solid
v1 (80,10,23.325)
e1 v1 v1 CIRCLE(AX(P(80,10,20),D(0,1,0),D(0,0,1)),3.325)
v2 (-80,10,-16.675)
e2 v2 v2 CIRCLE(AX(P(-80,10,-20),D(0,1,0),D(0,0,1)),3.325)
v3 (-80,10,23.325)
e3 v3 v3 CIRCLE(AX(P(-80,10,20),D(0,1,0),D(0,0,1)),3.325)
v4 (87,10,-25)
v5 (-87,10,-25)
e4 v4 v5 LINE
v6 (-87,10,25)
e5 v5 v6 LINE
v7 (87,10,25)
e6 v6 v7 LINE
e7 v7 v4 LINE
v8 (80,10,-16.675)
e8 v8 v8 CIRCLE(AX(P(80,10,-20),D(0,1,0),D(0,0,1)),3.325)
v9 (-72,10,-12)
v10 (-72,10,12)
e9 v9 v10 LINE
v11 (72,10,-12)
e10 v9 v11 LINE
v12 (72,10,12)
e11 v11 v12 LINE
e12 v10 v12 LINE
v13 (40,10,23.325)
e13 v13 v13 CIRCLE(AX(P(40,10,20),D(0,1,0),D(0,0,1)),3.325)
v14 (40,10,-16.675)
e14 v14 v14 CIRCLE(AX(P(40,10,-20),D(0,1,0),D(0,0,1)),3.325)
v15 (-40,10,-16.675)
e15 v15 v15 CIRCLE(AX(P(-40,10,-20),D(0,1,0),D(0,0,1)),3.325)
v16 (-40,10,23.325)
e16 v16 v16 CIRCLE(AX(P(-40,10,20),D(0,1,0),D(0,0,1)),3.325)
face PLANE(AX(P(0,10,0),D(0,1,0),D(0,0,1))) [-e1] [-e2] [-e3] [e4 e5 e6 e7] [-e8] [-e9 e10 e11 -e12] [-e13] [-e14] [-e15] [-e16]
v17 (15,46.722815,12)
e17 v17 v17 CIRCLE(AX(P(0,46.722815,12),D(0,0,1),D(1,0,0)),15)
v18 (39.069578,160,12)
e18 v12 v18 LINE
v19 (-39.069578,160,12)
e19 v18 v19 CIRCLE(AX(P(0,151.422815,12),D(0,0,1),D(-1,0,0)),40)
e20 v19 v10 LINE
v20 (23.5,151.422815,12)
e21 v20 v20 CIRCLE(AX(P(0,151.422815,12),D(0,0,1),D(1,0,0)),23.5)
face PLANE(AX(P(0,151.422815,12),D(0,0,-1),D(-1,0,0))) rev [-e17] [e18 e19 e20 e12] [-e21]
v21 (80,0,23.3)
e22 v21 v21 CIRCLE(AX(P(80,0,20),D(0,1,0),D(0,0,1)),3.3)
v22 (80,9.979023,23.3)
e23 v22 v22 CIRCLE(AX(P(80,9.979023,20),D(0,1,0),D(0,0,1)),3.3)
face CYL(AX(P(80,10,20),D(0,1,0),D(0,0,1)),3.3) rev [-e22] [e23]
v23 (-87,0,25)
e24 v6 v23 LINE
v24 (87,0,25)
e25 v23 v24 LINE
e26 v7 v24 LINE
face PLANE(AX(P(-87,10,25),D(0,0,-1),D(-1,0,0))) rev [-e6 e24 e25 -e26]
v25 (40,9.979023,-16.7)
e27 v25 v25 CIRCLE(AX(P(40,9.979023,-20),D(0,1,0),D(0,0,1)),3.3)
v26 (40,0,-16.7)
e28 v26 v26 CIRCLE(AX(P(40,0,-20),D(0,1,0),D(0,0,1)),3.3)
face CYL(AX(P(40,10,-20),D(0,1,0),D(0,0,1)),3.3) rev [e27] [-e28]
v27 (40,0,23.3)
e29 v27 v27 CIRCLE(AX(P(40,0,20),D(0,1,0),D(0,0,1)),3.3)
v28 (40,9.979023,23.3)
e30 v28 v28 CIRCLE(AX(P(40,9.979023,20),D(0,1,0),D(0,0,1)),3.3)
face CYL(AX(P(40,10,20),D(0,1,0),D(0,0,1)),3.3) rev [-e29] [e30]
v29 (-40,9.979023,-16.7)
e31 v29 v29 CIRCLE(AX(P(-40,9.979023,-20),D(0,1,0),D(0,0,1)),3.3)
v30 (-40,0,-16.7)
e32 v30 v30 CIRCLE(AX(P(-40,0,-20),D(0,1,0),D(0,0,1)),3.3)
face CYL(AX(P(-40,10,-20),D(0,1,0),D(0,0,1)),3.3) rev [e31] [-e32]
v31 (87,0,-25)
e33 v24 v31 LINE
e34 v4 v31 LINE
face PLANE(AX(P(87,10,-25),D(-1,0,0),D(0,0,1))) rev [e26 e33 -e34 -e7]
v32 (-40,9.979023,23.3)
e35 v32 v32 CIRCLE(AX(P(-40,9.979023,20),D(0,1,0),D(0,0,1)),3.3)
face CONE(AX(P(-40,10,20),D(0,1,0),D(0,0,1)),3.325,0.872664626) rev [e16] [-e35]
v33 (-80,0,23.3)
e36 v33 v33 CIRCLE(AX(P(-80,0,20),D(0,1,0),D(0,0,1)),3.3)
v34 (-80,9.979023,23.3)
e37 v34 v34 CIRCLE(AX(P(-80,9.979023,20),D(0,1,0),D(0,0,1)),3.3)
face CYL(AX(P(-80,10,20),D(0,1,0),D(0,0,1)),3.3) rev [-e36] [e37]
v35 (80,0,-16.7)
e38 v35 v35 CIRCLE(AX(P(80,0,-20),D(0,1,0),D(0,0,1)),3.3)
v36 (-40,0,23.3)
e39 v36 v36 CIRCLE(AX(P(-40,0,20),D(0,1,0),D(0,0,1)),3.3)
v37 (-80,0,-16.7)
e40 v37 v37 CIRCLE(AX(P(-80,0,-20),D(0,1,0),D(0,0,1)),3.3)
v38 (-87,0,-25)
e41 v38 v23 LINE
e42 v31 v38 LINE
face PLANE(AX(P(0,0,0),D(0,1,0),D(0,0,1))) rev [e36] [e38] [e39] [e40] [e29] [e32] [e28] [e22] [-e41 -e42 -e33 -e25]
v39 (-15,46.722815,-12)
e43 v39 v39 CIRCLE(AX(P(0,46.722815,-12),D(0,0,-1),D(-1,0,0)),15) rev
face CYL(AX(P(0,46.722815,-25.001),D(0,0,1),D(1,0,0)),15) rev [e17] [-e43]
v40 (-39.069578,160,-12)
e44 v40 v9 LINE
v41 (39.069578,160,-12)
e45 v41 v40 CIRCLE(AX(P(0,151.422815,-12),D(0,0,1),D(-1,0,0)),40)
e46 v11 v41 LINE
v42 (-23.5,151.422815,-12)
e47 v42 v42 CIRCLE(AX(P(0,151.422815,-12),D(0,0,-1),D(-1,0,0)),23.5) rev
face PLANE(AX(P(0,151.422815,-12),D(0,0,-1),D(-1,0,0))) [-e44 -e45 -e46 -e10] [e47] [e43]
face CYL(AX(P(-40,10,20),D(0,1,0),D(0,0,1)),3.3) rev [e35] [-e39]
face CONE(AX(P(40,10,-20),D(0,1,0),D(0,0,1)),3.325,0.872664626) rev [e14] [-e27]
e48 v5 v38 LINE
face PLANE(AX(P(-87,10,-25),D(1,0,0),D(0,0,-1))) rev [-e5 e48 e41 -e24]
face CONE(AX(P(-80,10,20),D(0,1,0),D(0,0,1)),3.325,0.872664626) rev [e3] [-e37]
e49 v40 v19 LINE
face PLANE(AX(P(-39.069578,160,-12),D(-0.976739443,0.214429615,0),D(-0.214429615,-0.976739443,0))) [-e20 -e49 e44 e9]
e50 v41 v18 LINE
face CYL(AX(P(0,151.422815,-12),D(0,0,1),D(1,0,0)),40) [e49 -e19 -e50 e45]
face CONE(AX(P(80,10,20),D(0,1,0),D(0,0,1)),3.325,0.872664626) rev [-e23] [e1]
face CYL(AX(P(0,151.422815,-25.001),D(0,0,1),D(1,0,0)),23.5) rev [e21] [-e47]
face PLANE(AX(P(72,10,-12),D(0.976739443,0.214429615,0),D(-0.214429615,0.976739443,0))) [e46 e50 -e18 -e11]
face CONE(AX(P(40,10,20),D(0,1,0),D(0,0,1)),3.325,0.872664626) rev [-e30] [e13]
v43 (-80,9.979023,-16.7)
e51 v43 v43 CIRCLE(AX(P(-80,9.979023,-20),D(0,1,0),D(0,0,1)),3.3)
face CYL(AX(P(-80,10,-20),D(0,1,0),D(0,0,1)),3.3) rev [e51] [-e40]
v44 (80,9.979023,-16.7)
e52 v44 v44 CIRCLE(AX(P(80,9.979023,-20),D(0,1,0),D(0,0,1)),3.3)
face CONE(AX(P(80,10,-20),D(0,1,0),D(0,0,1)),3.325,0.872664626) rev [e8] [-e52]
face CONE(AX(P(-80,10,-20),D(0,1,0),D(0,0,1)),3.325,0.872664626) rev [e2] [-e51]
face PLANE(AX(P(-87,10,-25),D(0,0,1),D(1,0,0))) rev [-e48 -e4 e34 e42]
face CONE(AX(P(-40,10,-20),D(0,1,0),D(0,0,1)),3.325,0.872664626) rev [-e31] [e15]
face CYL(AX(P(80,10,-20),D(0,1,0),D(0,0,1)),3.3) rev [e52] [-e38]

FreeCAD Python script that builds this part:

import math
import FreeCAD as App
import Part
import Sketcher


def add_polygon(sketch, points):
    """Adds a closed chain of lines whose ends are joined by coincident constraints."""
    first, n = sketch.GeometryCount, len(points)
    for a, b in zip(points, points[1:] + points[:1]):
        sketch.addGeometry(Part.LineSegment(App.Vector(*a, 0), App.Vector(*b, 0)), False)
    for i in range(n):
        sketch.addConstraint(Sketcher.Constraint("Coincident", first + i, 2, first + (i + 1) % n, 1))

doc = App.newDocument("Part")
params = doc.addObject("Spreadsheet::Sheet", "Params")
for row, (alias, value) in enumerate([
    ("sketch1_width", "174 mm"),
    ("sketch1_height", "50 mm"),
    ("pad1_length", "10 mm"),
    ("sketch2_diameter", "6.6 mm"),
    ("hole_diameter", "6.6 mm"),
    ("hole_csink_diameter", "6.65 mm"),
    ("sketch3_radius", "40 mm"),
    ("sketch3_width", "144 mm"),
    ("pad2_length", "12 mm"),
    ("pad2_length2", "12 mm"),
    ("sketch4_diameter", "30 mm"),
    ("sketch5_diameter", "47 mm"),
], start=1):
    params.set(f"A{row}", alias)
    params.set(f"B{row}", "=" + value)
    params.setAlias(f"B{row}", alias)

body = doc.addObject("PartDesign::Body", "Body")

# Sketch on XZ plane
sketch1 = doc.addObject("Sketcher::SketchObject", "Sketch")
body.addObject(sketch1)
sketch1.AttachmentSupport = (doc.XZ_Plane, [""])
sketch1.MapMode = "FlatFace"
add_polygon(sketch1, [(-87, -25), (-87, 25), (87, 25), (87, -25)])  # lines 0-3
sketch1.addConstraint(Sketcher.Constraint("Vertical", 0))
sketch1.addConstraint(Sketcher.Constraint("Horizontal", 1))
sketch1.addConstraint(Sketcher.Constraint("Vertical", 2))
sketch1.addConstraint(Sketcher.Constraint("Horizontal", 3))
sketch1.addConstraint(Sketcher.Constraint("Symmetric", 0, 2, 2, 2, -1, 1))
sketch1.addConstraint(Sketcher.Constraint("DistanceX", 1, 1, 1, 2, 174.0))
sketch1.addConstraint(Sketcher.Constraint("DistanceY", 0, 1, 0, 2, 50.0))
sketch1.setExpression("Constraints[9]", "Params.sketch1_width")
sketch1.setExpression("Constraints[10]", "Params.sketch1_height")
pad1 = doc.addObject("PartDesign::Pad", "Pad")
body.addObject(pad1)
pad1.Profile = sketch1
pad1.setExpression("Length", "Params.pad1_length")
pad1.Reversed = True

# Sketch on XZ plane
sketch2 = doc.addObject("Sketcher::SketchObject", "Sketch001")
body.addObject(sketch2)
sketch2.AttachmentSupport = (doc.XZ_Plane, [""])
sketch2.MapMode = "FlatFace"
sketch2.AttachmentOffset = App.Placement(App.Vector(0, 0, -10), App.Rotation())
sketch2.addGeometry(Part.Circle(App.Vector(-80, -20, 0), App.Vector(0, 0, 1), 3.3), False)
sketch2.addGeometry(Part.Circle(App.Vector(-40, -20, 0), App.Vector(0, 0, 1), 3.3), False)
sketch2.addGeometry(Part.Circle(App.Vector(-80, 20, 0), App.Vector(0, 0, 1), 3.3), False)
sketch2.addGeometry(Part.Circle(App.Vector(-40, 20, 0), App.Vector(0, 0, 1), 3.3), False)
sketch2.addGeometry(Part.Circle(App.Vector(40, -20, 0), App.Vector(0, 0, 1), 3.3), False)
sketch2.addGeometry(Part.Circle(App.Vector(80, -20, 0), App.Vector(0, 0, 1), 3.3), False)
sketch2.addGeometry(Part.Circle(App.Vector(40, 20, 0), App.Vector(0, 0, 1), 3.3), False)
sketch2.addGeometry(Part.Circle(App.Vector(80, 20, 0), App.Vector(0, 0, 1), 3.3), False)
sketch2.addConstraint(Sketcher.Constraint("Equal", 0, 1))
sketch2.addConstraint(Sketcher.Constraint("Equal", 1, 2))
sketch2.addConstraint(Sketcher.Constraint("Equal", 2, 3))
sketch2.addConstraint(Sketcher.Constraint("Equal", 3, 4))
sketch2.addConstraint(Sketcher.Constraint("Equal", 4, 5))
sketch2.addConstraint(Sketcher.Constraint("Equal", 5, 6))
sketch2.addConstraint(Sketcher.Constraint("Equal", 6, 7))
sketch2.addConstraint(Sketcher.Constraint("Symmetric", 3, 3, 4, 3, -1, 1))
sketch2.addConstraint(Sketcher.Constraint("Symmetric", 2, 3, 5, 3, -1, 1))
sketch2.addConstraint(Sketcher.Constraint("Symmetric", 1, 3, 6, 3, -1, 1))
sketch2.addConstraint(Sketcher.Constraint("Symmetric", 0, 3, 7, 3, -1, 1))
sketch2.addConstraint(Sketcher.Constraint("Symmetric", 1, 3, 4, 3, -2))
sketch2.addConstraint(Sketcher.Constraint("Symmetric", 0, 3, 5, 3, -2))
sketch2.addConstraint(Sketcher.Constraint("Horizontal", 0, 3, 1, 3))
sketch2.addConstraint(Sketcher.Constraint("Diameter", 0, 6.6))
sketch2.addConstraint(Sketcher.Constraint("DistanceX", 0, 3, -1, 1, 80.0))
sketch2.addConstraint(Sketcher.Constraint("DistanceY", 0, 3, -1, 1, 20.0))
sketch2.addConstraint(Sketcher.Constraint("DistanceX", 1, 3, -1, 1, 40.0))
sketch2.setExpression("Constraints[14]", "Params.sketch2_diameter")
doc.recompute()
hole = doc.addObject("PartDesign::Hole", "Hole")
body.addObject(hole)
hole.Profile = sketch2
hole.ThreadType = "None"
hole.setExpression("Diameter", "Params.hole_diameter")
hole.DepthType = "ThroughAll"
hole.HoleCutType = "Countersink"
hole.setExpression("HoleCutDiameter", "Params.hole_csink_diameter")
hole.HoleCutCountersinkAngle = 100
hole.Reversed = True

# Sketch on XY plane
sketch3 = doc.addObject("Sketcher::SketchObject", "Sketch002")
body.addObject(sketch3)
sketch3.AttachmentSupport = (doc.XY_Plane, [""])
sketch3.MapMode = "FlatFace"
sketch3.addGeometry(Part.LineSegment(App.Vector(-72, 10, 0), App.Vector(72, 10, 0)), False)
sketch3.addGeometry(Part.LineSegment(App.Vector(72, 10, 0), App.Vector(39, 160, 0)), False)
sketch3.addGeometry(Part.ArcOfCircle(Part.Circle(App.Vector(0, 151, 0), App.Vector(0, 0, 1), 40), math.radians(12), math.radians(168)), False)
sketch3.addGeometry(Part.LineSegment(App.Vector(-39, 160, 0), App.Vector(-72, 10, 0)), False)
sketch3.addConstraint(Sketcher.Constraint("Coincident", 0, 2, 1, 1))
sketch3.addConstraint(Sketcher.Constraint("Tangent", 1, 2, 2, 1))
sketch3.addConstraint(Sketcher.Constraint("Tangent", 2, 2, 3, 1))
sketch3.addConstraint(Sketcher.Constraint("Coincident", 3, 2, 0, 1))
sketch3.addConstraint(Sketcher.Constraint("Horizontal", 0))
sketch3.addConstraint(Sketcher.Constraint("Symmetric", 1, 2, 2, 2, -2))
sketch3.addConstraint(Sketcher.Constraint("Radius", 2, 40.0))
sketch3.addConstraint(Sketcher.Constraint("DistanceX", 0, 1, 0, 2, 144.0))
sketch3.addConstraint(Sketcher.Constraint("DistanceY", -1, 1, 0, 2, 10.0))
sketch3.addConstraint(Sketcher.Constraint("DistanceY", -1, 1, 1, 2, 160.0))
sketch3.setExpression("Constraints[6]", "Params.sketch3_radius")
sketch3.setExpression("Constraints[7]", "Params.sketch3_width")
pad2 = doc.addObject("PartDesign::Pad", "Pad001")
body.addObject(pad2)
pad2.Profile = sketch3
pad2.Type = "TwoLengths"
pad2.setExpression("Length", "Params.pad2_length")
pad2.setExpression("Length2", "Params.pad2_length2")

# Sketch on XY plane
sketch4 = doc.addObject("Sketcher::SketchObject", "Sketch003")
body.addObject(sketch4)
sketch4.AttachmentSupport = (doc.XY_Plane, [""])
sketch4.MapMode = "FlatFace"
sketch4.AttachmentOffset = App.Placement(App.Vector(0, 0, 12), App.Rotation())
sketch4.addGeometry(Part.Circle(App.Vector(0, 47, 0), App.Vector(0, 0, 1), 15), False)
sketch4.addConstraint(Sketcher.Constraint("PointOnObject", 0, 3, -2))
sketch4.addConstraint(Sketcher.Constraint("Diameter", 0, 30.0))
sketch4.addConstraint(Sketcher.Constraint("DistanceY", -1, 1, 0, 3, 46.722815))
sketch4.setExpression("Constraints[1]", "Params.sketch4_diameter")
pocket1 = doc.addObject("PartDesign::Pocket", "Pocket")
body.addObject(pocket1)
pocket1.Profile = sketch4
pocket1.Type = "UpToFirst"

# Sketch on XY plane
sketch5 = doc.addObject("Sketcher::SketchObject", "Sketch004")
body.addObject(sketch5)
sketch5.AttachmentSupport = (doc.XY_Plane, [""])
sketch5.MapMode = "FlatFace"
sketch5.AttachmentOffset = App.Placement(App.Vector(0, 0, 12), App.Rotation())
sketch5.addGeometry(Part.Circle(App.Vector(0, 151, 0), App.Vector(0, 0, 1), 24), False)
sketch5.addConstraint(Sketcher.Constraint("PointOnObject", 0, 3, -2))
sketch5.addConstraint(Sketcher.Constraint("Diameter", 0, 47.0))
sketch5.addConstraint(Sketcher.Constraint("DistanceY", -1, 1, 0, 3, 151.422815))
sketch5.setExpression("Constraints[1]", "Params.sketch5_diameter")
pocket2 = doc.addObject("PartDesign::Pocket", "Pocket001")
body.addObject(pocket2)
pocket2.Profile = sketch5
pocket2.Type = "UpToFirst"

doc.recompute()
